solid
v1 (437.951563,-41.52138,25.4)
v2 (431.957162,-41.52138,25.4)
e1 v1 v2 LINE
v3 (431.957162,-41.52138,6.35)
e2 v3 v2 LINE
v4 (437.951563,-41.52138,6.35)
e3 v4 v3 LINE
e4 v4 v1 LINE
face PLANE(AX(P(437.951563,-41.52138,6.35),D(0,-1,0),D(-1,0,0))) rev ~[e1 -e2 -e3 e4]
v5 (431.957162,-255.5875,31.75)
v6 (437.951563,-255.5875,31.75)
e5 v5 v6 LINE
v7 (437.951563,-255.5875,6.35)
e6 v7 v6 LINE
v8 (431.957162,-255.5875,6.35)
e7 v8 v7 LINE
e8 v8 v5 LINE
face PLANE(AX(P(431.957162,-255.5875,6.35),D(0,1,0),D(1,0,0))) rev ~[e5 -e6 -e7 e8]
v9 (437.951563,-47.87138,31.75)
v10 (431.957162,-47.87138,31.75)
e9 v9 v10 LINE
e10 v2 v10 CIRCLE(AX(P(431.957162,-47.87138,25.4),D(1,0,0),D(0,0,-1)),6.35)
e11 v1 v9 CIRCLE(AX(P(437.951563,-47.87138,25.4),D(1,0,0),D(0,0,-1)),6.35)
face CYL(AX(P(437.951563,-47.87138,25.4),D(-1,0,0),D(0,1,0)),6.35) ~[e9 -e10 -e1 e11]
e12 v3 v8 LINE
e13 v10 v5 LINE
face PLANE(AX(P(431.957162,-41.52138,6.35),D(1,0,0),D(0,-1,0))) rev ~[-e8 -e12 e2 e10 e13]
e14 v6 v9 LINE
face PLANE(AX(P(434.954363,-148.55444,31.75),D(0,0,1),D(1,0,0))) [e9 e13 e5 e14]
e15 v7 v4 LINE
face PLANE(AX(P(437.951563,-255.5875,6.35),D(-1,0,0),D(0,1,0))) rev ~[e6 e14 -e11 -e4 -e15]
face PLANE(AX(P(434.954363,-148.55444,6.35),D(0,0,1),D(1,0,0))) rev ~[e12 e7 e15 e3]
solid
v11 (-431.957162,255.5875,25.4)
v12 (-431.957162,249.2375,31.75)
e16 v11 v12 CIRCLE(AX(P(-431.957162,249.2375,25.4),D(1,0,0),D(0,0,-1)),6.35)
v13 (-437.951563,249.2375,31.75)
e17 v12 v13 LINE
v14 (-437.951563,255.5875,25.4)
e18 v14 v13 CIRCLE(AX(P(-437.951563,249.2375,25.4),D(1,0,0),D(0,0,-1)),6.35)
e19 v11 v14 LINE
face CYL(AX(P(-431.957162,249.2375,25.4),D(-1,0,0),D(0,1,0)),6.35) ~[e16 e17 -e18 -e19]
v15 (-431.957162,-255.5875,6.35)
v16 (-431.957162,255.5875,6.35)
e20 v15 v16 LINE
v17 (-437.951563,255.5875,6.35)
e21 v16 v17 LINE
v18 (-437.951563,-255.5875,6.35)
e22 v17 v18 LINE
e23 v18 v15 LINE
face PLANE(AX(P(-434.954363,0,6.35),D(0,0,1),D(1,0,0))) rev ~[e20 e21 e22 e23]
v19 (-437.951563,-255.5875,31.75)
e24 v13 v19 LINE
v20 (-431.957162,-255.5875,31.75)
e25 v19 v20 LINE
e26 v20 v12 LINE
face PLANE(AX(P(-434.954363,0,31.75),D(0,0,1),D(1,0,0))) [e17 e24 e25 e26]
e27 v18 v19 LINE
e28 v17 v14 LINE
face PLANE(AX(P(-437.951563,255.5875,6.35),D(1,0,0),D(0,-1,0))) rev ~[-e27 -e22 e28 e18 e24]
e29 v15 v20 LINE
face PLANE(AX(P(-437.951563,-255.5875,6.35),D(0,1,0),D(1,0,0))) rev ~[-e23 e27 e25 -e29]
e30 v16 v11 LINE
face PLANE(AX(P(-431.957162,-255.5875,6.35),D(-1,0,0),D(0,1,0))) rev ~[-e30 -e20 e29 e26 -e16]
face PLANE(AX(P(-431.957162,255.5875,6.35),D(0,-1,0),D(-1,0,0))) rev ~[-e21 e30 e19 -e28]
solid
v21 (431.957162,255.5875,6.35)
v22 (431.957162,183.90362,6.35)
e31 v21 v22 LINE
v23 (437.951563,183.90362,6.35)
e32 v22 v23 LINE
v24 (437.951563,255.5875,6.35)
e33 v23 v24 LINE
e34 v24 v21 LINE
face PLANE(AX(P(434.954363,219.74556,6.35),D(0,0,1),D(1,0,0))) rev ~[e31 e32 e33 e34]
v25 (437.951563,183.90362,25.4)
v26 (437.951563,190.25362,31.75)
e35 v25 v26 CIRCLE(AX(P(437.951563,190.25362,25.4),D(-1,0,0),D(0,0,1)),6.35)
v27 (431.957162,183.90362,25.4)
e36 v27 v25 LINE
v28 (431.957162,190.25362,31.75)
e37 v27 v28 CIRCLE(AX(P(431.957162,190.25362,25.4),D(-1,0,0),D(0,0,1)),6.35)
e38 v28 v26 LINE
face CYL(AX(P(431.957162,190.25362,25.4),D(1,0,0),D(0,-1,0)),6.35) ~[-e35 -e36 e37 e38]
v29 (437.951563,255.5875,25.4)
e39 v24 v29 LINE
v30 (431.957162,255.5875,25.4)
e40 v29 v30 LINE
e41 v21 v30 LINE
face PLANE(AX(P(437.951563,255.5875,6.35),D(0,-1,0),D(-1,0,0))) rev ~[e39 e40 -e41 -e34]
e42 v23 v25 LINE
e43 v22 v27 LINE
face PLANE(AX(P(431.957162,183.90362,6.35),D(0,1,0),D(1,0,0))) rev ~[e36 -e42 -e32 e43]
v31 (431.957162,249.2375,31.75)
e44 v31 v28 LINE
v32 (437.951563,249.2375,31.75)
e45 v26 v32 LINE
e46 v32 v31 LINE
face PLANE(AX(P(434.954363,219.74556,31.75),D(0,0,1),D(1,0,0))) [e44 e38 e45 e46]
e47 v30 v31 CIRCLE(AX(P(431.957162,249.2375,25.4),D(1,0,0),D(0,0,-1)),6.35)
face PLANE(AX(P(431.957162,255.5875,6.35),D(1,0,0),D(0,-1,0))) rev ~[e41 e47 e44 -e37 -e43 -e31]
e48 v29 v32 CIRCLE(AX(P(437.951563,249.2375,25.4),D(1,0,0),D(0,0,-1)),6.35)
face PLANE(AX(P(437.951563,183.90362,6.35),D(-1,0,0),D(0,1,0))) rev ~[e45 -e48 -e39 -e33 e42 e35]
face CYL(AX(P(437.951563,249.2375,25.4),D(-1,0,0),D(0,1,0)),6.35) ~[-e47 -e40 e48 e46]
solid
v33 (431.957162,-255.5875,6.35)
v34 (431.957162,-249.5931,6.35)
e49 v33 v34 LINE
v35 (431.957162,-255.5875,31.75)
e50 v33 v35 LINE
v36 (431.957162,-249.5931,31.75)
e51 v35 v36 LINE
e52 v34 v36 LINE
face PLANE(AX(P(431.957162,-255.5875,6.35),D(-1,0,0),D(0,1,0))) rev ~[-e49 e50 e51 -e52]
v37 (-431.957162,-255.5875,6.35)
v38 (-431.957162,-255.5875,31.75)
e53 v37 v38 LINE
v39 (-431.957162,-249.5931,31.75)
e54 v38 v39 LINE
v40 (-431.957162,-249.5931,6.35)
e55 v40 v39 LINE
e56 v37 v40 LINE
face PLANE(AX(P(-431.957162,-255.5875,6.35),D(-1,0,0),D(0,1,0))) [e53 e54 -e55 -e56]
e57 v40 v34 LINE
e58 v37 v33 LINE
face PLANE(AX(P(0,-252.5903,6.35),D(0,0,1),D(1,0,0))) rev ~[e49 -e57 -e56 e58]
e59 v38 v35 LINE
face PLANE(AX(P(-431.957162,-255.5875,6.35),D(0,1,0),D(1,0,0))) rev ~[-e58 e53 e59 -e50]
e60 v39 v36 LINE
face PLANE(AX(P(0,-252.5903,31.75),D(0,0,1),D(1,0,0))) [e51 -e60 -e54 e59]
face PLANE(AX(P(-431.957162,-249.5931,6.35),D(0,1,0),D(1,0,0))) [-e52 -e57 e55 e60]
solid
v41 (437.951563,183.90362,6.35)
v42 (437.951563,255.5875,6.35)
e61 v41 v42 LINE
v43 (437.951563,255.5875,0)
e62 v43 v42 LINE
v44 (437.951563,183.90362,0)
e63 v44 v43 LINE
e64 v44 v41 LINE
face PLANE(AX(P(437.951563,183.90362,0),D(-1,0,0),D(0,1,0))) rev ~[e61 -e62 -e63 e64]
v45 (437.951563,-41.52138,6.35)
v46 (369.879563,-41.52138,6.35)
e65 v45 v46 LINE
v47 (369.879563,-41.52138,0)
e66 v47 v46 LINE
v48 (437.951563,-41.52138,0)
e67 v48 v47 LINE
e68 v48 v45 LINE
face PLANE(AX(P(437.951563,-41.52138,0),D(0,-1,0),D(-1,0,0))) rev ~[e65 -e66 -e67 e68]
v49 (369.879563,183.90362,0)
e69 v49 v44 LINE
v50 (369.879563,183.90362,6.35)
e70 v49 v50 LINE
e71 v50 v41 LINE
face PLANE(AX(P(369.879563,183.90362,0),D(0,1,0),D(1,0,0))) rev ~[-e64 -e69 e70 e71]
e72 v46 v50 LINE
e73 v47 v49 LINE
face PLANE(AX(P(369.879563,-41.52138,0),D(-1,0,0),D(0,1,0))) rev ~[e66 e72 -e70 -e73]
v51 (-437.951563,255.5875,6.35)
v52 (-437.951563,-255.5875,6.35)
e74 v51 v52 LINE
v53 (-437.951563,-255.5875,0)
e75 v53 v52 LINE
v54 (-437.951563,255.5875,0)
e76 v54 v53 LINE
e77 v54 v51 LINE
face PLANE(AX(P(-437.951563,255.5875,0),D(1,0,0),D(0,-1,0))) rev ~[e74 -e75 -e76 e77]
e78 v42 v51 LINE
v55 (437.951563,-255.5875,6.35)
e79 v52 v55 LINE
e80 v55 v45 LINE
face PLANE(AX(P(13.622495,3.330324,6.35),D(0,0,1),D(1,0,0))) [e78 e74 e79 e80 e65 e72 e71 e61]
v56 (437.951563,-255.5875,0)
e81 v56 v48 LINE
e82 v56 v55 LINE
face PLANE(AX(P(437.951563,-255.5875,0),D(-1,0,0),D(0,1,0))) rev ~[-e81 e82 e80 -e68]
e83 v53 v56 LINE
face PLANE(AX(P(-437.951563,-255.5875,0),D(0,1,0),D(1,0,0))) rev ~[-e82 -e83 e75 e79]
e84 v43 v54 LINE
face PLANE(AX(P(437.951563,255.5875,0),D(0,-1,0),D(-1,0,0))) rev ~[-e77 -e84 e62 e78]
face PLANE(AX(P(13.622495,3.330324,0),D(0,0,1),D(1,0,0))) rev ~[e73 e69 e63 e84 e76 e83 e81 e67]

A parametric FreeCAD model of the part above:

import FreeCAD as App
import Part
import Sketcher

V = App.Vector
Q = App.Units.Quantity


def edges_at(feature, points):
    """Names of the edges that pass closest to the given points."""
    edges = feature.Shape.Edges
    near = lambda p: min(range(len(edges)), key=lambda i: edges[i].distToShape(Part.Vertex(*p))[0])
    return sorted({f"Edge{near(p) + 1}" for p in points})


def add_polygon(sketch, points):
    """Adds a closed chain of lines whose ends are joined by coincident constraints."""
    first, n = sketch.GeometryCount, len(points)
    for a, b in zip(points, points[1:] + points[:1]):
        sketch.addGeometry(Part.LineSegment(App.Vector(*a, 0), App.Vector(*b, 0)), False)
    for i in range(n):
        sketch.addConstraint(Sketcher.Constraint("Coincident", first + i, 2, first + (i + 1) % n, 1))

doc = App.newDocument("Part")
body = doc.addObject("PartDesign::Body", "Body")

sketch1 = doc.addObject("Sketcher::SketchObject", "Sketch")
body.addObject(sketch1)
sketch1.AttachmentSupport = (doc.XY_Plane, [""])
sketch1.MapMode = "FlatFace"
add_polygon(sketch1, [(-437.951563, -255.5875), (437.951563, -255.5875), (437.951563, -41.52138), (369.879563, -41.52138), (369.879563, 183.90362), (437.951563, 183.90362), (437.951563, 255.5875), (-437.951563, 255.5875)])
sketch1.addConstraint([
    Sketcher.Constraint("Horizontal", 0),
    Sketcher.Constraint("Vertical", 1),
    Sketcher.Constraint("Horizontal", 2),
    Sketcher.Constraint("Vertical", 3),
    Sketcher.Constraint("Horizontal", 4),
    Sketcher.Constraint("Vertical", 5),
    Sketcher.Constraint("Horizontal", 6),
    Sketcher.Constraint("Vertical", 7),
    Sketcher.Constraint("Symmetric", 0, 2, 6, 2, -1, 1),
    Sketcher.Constraint("Vertical", 1, 2, 4, 2),
    Sketcher.Constraint("DistanceX", 2, 2, 2, 1, Q("2.68 in")),
    Sketcher.Constraint("DistanceX", 0, 1, 0, 2, Q("34.484375 in")),
    Sketcher.Constraint("DistanceY", 3, 1, 3, 2, Q("8.875 in")),
    Sketcher.Constraint("DistanceY", 7, 2, 7, 1, Q("20.125 in")),
    Sketcher.Constraint("DistanceY", 1, 1, 1, 2, Q("8.4278 in")),
])
pad1 = doc.addObject("PartDesign::Pad", "Pad")
body.addObject(pad1)
pad1.Profile = sketch1
pad1.Length = Q("0.25 in")
body2 = doc.addObject("PartDesign::Body", "Body001")

sketch2 = doc.addObject("Sketcher::SketchObject", "Sketch001")
body2.addObject(sketch2)
sketch2.AttachmentSupport = (doc.getObject("XY_Plane001"), [""])
sketch2.MapMode = "FlatFace"
sketch2.AttachmentOffset = App.Placement(V(0, 0, 0.25 * 25.4), App.Rotation())
add_polygon(sketch2, [(-437.951563, -255.5875), (-431.957162, -255.5875), (-431.957162, 255.5875), (-437.951563, 255.5875)])
sketch2.addConstraint([
    Sketcher.Constraint("Horizontal", 0),
    Sketcher.Constraint("Vertical", 1),
    Sketcher.Constraint("Horizontal", 2),
    Sketcher.Constraint("Vertical", 3),
    Sketcher.Constraint("DistanceX", 0, 1, 0, 2, Q("0.236 in")),
    Sketcher.Constraint("DistanceY", 1, 1, 1, 2, Q("20.125 in")),
    Sketcher.Constraint("DistanceY", 0, 2, -1, 1, Q("10.0625 in")),
    Sketcher.Constraint("DistanceX", 0, 2, -1, 1, 431.957162),
])
pad2 = doc.addObject("PartDesign::Pad", "Pad001")
body2.addObject(pad2)
pad2.Profile = sketch2
pad2.Length = Q("1 in")
doc.recompute()

fillet = doc.addObject("PartDesign::Fillet", "Fillet")
body2.addObject(fillet)
fillet.Base = (pad2, edges_at(pad2, [(-434.954, 255.588, 31.75)]))
fillet.Radius = Q("0.25 in")
body3 = doc.addObject("PartDesign::Body", "Body002")

sketch3 = doc.addObject("Sketcher::SketchObject", "Sketch002")
body3.addObject(sketch3)
sketch3.AttachmentSupport = (doc.getObject("XY_Plane002"), [""])
sketch3.MapMode = "FlatFace"
sketch3.AttachmentOffset = App.Placement(V(0, 0, 0.25 * 25.4), App.Rotation())
add_polygon(sketch3, [(431.957162, -255.5875), (437.951563, -255.5875), (437.951563, -41.52138), (431.957162, -41.52138)])
sketch3.addConstraint([
    Sketcher.Constraint("Horizontal", 0),
    Sketcher.Constraint("Vertical", 1),
    Sketcher.Constraint("Horizontal", 2),
    Sketcher.Constraint("Vertical", 3),
    Sketcher.Constraint("DistanceX", 0, 1, 0, 2, Q("0.236 in")),
    Sketcher.Constraint("DistanceY", 1, 1, 1, 2, Q("8.4278 in")),
    Sketcher.Constraint("DistanceY", 0, 2, -1, 1, Q("10.0625 in")),
    Sketcher.Constraint("DistanceX", -1, 1, 0, 2, 437.951563),
])
pad3 = doc.addObject("PartDesign::Pad", "Pad002")
body3.addObject(pad3)
pad3.Profile = sketch3
pad3.Length = Q("1 in")
doc.recompute()

fillet2 = doc.addObject("PartDesign::Fillet", "Fillet001")
body3.addObject(fillet2)
fillet2.Base = (pad3, edges_at(pad3, [(434.954, -41.521, 31.75)]))
fillet2.Radius = Q("0.25 in")
body4 = doc.addObject("PartDesign::Body", "Body003")

sketch4 = doc.addObject("Sketcher::SketchObject", "Sketch003")
body4.addObject(sketch4)
sketch4.AttachmentSupport = (doc.getObject("XY_Plane003"), [""])
sketch4.MapMode = "FlatFace"
sketch4.AttachmentOffset = App.Placement(V(0, 0, 0.25 * 25.4), App.Rotation())
add_polygon(sketch4, [(-431.957162, -249.5931), (-431.957162, -255.5875), (431.957162, -255.5875), (431.957162, -249.5931)])
sketch4.addConstraint([
    Sketcher.Constraint("Vertical", 0),
    Sketcher.Constraint("Horizontal", 1),
    Sketcher.Constraint("Vertical", 2),
    Sketcher.Constraint("Horizontal", 3),
    Sketcher.Constraint("DistanceY", 0, 2, 0, 1, Q("0.236 in")),
    Sketcher.Constraint("DistanceY", 0, 2, -1, 1, Q("10.0625 in")),
    Sketcher.Constraint("DistanceX", 1, 1, 1, 2, 863.914325),
    Sketcher.Constraint("DistanceX", 0, 2, -1, 1, 431.957162),
])
pad4 = doc.addObject("PartDesign::Pad", "Pad003")
body4.addObject(pad4)
pad4.Profile = sketch4
pad4.Length = Q("1 in")
body5 = doc.addObject("PartDesign::Body", "Body004")

sketch5 = doc.addObject("Sketcher::SketchObject", "Sketch004")
body5.addObject(sketch5)
sketch5.AttachmentSupport = (doc.getObject("XY_Plane004"), [""])
sketch5.MapMode = "FlatFace"
sketch5.AttachmentOffset = App.Placement(V(0, 0, 0.25 * 25.4), App.Rotation())
add_polygon(sketch5, [(437.951563, 255.5875), (431.957162, 255.5875), (431.957162, 183.90362), (437.951563, 183.90362)])
sketch5.addConstraint([
    Sketcher.Constraint("Horizontal", 0),
    Sketcher.Constraint("Vertical", 1),
    Sketcher.Constraint("Horizontal", 2),
    Sketcher.Constraint("Vertical", 3),
    Sketcher.Constraint("DistanceX", 0, 2, 0, 1, Q("0.236 in")),
    Sketcher.Constraint("DistanceY", 1, 2, 1, 1, Q("2.8222 in")),
    Sketcher.Constraint("DistanceY", -1, 1, 0, 2, Q("10.0625 in")),
    Sketcher.Constraint("DistanceX", -1, 1, 0, 2, 431.957162),
])
pad5 = doc.addObject("PartDesign::Pad", "Pad004")
body5.addObject(pad5)
pad5.Profile = sketch5
pad5.Length = Q("1 in")
doc.recompute()

fillet3 = doc.addObject("PartDesign::Fillet", "Fillet002")
body5.addObject(fillet3)
fillet3.Base = (pad5, edges_at(pad5, [(434.954, 183.904, 31.75), (434.954, 255.588, 31.75)]))
fillet3.Radius = Q("0.25 in")

doc.recompute()
